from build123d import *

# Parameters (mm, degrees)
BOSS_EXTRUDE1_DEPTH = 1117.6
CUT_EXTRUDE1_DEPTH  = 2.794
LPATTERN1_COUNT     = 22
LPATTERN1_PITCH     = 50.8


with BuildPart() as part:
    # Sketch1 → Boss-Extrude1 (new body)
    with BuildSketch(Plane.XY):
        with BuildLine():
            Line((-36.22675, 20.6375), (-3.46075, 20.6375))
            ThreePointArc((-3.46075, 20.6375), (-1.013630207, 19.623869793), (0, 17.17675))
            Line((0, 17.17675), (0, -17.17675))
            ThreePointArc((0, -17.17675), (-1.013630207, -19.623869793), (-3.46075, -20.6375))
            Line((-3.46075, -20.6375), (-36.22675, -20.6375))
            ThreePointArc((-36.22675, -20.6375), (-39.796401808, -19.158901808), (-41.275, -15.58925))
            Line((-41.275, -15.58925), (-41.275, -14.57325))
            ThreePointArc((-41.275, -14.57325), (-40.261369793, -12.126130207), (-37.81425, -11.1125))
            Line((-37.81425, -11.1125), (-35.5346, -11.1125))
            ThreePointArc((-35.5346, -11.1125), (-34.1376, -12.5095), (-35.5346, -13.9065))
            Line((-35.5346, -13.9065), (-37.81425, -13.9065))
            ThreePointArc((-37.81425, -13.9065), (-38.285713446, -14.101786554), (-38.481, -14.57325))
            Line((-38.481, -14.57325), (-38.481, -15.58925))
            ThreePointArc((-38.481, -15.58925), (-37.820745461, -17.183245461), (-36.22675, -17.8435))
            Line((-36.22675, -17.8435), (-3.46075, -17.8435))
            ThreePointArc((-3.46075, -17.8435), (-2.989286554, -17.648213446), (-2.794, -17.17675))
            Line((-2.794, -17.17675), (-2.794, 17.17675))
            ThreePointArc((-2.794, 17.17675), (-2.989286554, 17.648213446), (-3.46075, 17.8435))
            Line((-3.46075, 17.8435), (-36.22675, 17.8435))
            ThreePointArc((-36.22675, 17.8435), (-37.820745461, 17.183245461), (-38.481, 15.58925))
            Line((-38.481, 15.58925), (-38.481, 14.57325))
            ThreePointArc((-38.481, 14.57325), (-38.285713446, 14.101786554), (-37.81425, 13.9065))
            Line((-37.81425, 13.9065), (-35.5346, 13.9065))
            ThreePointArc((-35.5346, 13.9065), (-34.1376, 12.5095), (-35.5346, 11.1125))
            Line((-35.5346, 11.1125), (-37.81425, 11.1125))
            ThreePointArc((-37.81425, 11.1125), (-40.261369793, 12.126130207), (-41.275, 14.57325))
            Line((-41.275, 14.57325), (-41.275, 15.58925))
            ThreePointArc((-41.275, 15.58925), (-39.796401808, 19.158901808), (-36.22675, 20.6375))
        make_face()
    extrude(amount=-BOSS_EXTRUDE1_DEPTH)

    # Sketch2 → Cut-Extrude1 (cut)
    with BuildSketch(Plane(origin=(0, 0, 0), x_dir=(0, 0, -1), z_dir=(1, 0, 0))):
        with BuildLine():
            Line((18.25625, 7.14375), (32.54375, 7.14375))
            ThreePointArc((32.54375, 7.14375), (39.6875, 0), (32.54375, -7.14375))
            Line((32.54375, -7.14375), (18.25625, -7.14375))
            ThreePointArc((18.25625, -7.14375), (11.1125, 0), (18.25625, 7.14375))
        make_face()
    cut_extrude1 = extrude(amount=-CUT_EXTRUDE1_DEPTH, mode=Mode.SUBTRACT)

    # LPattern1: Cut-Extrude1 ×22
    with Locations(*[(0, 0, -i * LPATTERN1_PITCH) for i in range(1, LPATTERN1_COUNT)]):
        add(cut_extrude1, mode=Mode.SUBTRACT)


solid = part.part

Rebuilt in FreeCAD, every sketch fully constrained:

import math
import FreeCAD as App
import Part
import Sketcher
from FreeCAD import Vector
Q = App.Units.Quantity

doc = App.newDocument("Part")
body = doc.addObject("PartDesign::Body", "Body")

sketch1 = body.newObject("Sketcher::SketchObject", "Sketch")
sketch1.AttachmentSupport = (doc.getObject("XY_Plane"), [""])
sketch1.MapMode = "FlatFace"
sketch1.addGeometry(Part.LineSegment(Vector(-3.46075, 20.6375, 0), Vector(-36.22675, 20.6375, 0)), False)
sketch1.addGeometry(Part.ArcOfCircle(Part.Circle(Vector(-36.22675, 15.58925, 0), Vector(0, 0, 1), 5.04825), math.radians(90), math.radians(180)), False)
sketch1.addGeometry(Part.LineSegment(Vector(-41.275, 15.58925, 0), Vector(-41.275, 14.57325, 0)), False)
sketch1.addGeometry(Part.ArcOfCircle(Part.Circle(Vector(-37.81425, 14.57325, 0), Vector(0, 0, 1), 3.46075), math.radians(180), math.radians(270)), False)
sketch1.addGeometry(Part.LineSegment(Vector(-37.81425, 11.1125, 0), Vector(-35.5346, 11.1125, 0)), False)
sketch1.addGeometry(Part.ArcOfCircle(Part.Circle(Vector(-35.5346, 12.5095, 0), Vector(0, 0, 1), 1.397), math.radians(-90), math.radians(90)), False)
sketch1.addGeometry(Part.LineSegment(Vector(-35.5346, 13.9065, 0), Vector(-37.81425, 13.9065, 0)), False)
sketch1.addGeometry(Part.ArcOfCircle(Part.Circle(Vector(-37.81425, 14.57325, 0), Vector(0, 0, 1), 0.66675), math.radians(-180), math.radians(-90)), False)
sketch1.addGeometry(Part.LineSegment(Vector(-38.481, 14.57325, 0), Vector(-38.481, 15.58925, 0)), False)
sketch1.addGeometry(Part.ArcOfCircle(Part.Circle(Vector(-36.22675, 15.58925, 0), Vector(0, 0, 1), 2.25425), math.radians(90), math.radians(180)), False)
sketch1.addGeometry(Part.LineSegment(Vector(-36.22675, 17.8435, 0), Vector(-3.46075, 17.8435, 0)), False)
sketch1.addGeometry(Part.ArcOfCircle(Part.Circle(Vector(-3.46075, 17.17675, 0), Vector(0, 0, 1), 0.66675), math.radians(0), math.radians(90)), False)
sketch1.addGeometry(Part.LineSegment(Vector(-2.794, 17.17675, 0), Vector(-2.794, -17.17675, 0)), False)
sketch1.addGeometry(Part.ArcOfCircle(Part.Circle(Vector(-3.46075, -17.17675, 0), Vector(0, 0, 1), 0.66675), math.radians(-90), math.radians(0)), False)
sketch1.addGeometry(Part.LineSegment(Vector(-3.46075, -17.8435, 0), Vector(-36.22675, -17.8435, 0)), False)
sketch1.addGeometry(Part.ArcOfCircle(Part.Circle(Vector(-36.22675, -15.58925, 0), Vector(0, 0, 1), 2.25425), math.radians(-180), math.radians(-90)), False)
sketch1.addGeometry(Part.LineSegment(Vector(-38.481, -15.58925, 0), Vector(-38.481, -14.57325, 0)), False)
sketch1.addGeometry(Part.ArcOfCircle(Part.Circle(Vector(-37.81425, -14.57325, 0), Vector(0, 0, 1), 0.66675), math.radians(90), math.radians(180)), False)
sketch1.addGeometry(Part.LineSegment(Vector(-37.81425, -13.9065, 0), Vector(-35.5346, -13.9065, 0)), False)
sketch1.addGeometry(Part.ArcOfCircle(Part.Circle(Vector(-35.5346, -12.5095, 0), Vector(0, 0, 1), 1.397), math.radians(-90), math.radians(90)), False)
sketch1.addGeometry(Part.LineSegment(Vector(-35.5346, -11.1125, 0), Vector(-37.81425, -11.1125, 0)), False)
sketch1.addGeometry(Part.ArcOfCircle(Part.Circle(Vector(-37.81425, -14.57325, 0), Vector(0, 0, 1), 3.46075), math.radians(90), math.radians(180)), False)
sketch1.addGeometry(Part.LineSegment(Vector(-41.275, -14.57325, 0), Vector(-41.275, -15.58925, 0)), False)
sketch1.addGeometry(Part.ArcOfCircle(Part.Circle(Vector(-36.22675, -15.58925, 0), Vector(0, 0, 1), 5.04825), math.radians(180), math.radians(270)), False)
sketch1.addGeometry(Part.LineSegment(Vector(-36.22675, -20.6375, 0), Vector(-3.46075, -20.6375, 0)), False)
sketch1.addGeometry(Part.ArcOfCircle(Part.Circle(Vector(-3.46075, -17.17675, 0), Vector(0, 0, 1), 3.46075), math.radians(-90), math.radians(0)), False)
sketch1.addGeometry(Part.LineSegment(Vector(0, -17.17675, 0), Vector(0, 17.17675, 0)), False)
sketch1.addGeometry(Part.ArcOfCircle(Part.Circle(Vector(-3.46075, 17.17675, 0), Vector(0, 0, 1), 3.46075), math.radians(0), math.radians(90)), False)
sketch1.addConstraint(Sketcher.Constraint("Tangent", 0, 2, 1, 1))
sketch1.addConstraint(Sketcher.Constraint("Tangent", 1, 2, 2, 1))
sketch1.addConstraint(Sketcher.Constraint("Tangent", 2, 2, 3, 1))
sketch1.addConstraint(Sketcher.Constraint("Tangent", 3, 2, 4, 1))
sketch1.addConstraint(Sketcher.Constraint("Tangent", 4, 2, 5, 1))
sketch1.addConstraint(Sketcher.Constraint("Tangent", 5, 2, 6, 1))
sketch1.addConstraint(Sketcher.Constraint("Tangent", 6, 2, 7, 2))
sketch1.addConstraint(Sketcher.Constraint("Tangent", 7, 1, 8, 1))
sketch1.addConstraint(Sketcher.Constraint("Tangent", 8, 2, 9, 2))
sketch1.addConstraint(Sketcher.Constraint("Tangent", 9, 1, 10, 1))
sketch1.addConstraint(Sketcher.Constraint("Tangent", 10, 2, 11, 2))
sketch1.addConstraint(Sketcher.Constraint("Tangent", 11, 1, 12, 1))
sketch1.addConstraint(Sketcher.Constraint("Tangent", 12, 2, 13, 2))
sketch1.addConstraint(Sketcher.Constraint("Tangent", 13, 1, 14, 1))
sketch1.addConstraint(Sketcher.Constraint("Tangent", 14, 2, 15, 2))
sketch1.addConstraint(Sketcher.Constraint("Tangent", 15, 1, 16, 1))
sketch1.addConstraint(Sketcher.Constraint("Tangent", 16, 2, 17, 2))
sketch1.addConstraint(Sketcher.Constraint("Tangent", 17, 1, 18, 1))
sketch1.addConstraint(Sketcher.Constraint("Tangent", 18, 2, 19, 1))
sketch1.addConstraint(Sketcher.Constraint("Tangent", 19, 2, 20, 1))
sketch1.addConstraint(Sketcher.Constraint("Tangent", 20, 2, 21, 1))
sketch1.addConstraint(Sketcher.Constraint("Tangent", 21, 2, 22, 1))
sketch1.addConstraint(Sketcher.Constraint("Tangent", 22, 2, 23, 1))
sketch1.addConstraint(Sketcher.Constraint("Tangent", 23, 2, 24, 1))
sketch1.addConstraint(Sketcher.Constraint("Tangent", 24, 2, 25, 1))
sketch1.addConstraint(Sketcher.Constraint("Tangent", 25, 2, 26, 1))
sketch1.addConstraint(Sketcher.Constraint("Tangent", 26, 2, 27, 1))
sketch1.addConstraint(Sketcher.Constraint("Tangent", 27, 2, 0, 1))
sketch1.addConstraint(Sketcher.Constraint("Horizontal", 0))
sketch1.addConstraint(Sketcher.Constraint("Vertical", 2))
sketch1.addConstraint(Sketcher.Constraint("Horizontal", 4))
sketch1.addConstraint(Sketcher.Constraint("Horizontal", 6))
sketch1.addConstraint(Sketcher.Constraint("Vertical", 8))
sketch1.addConstraint(Sketcher.Constraint("Horizontal", 10))
sketch1.addConstraint(Sketcher.Constraint("Vertical", 12))
sketch1.addConstraint(Sketcher.Constraint("Horizontal", 14))
sketch1.addConstraint(Sketcher.Constraint("Vertical", 16))
sketch1.addConstraint(Sketcher.Constraint("Horizontal", 18))
sketch1.addConstraint(Sketcher.Constraint("Horizontal", 20))
sketch1.addConstraint(Sketcher.Constraint("Vertical", 22))
sketch1.addConstraint(Sketcher.Constraint("Horizontal", 24))
sketch1.addConstraint(Sketcher.Constraint("Vertical", 26))
sketch1.addConstraint(Sketcher.Constraint("Coincident", 7, 3, 3, 3))
sketch1.addConstraint(Sketcher.Constraint("Coincident", 9, 3, 1, 3))
sketch1.addConstraint(Sketcher.Constraint("Coincident", 21, 3, 17, 3))
sketch1.addConstraint(Sketcher.Constraint("Coincident", 23, 3, 15, 3))
sketch1.addConstraint(Sketcher.Constraint("Coincident", 25, 3, 13, 3))
sketch1.addConstraint(Sketcher.Constraint("Coincident", 27, 3, 11, 3))
sketch1.addConstraint(Sketcher.Constraint("Equal", 7, 11))
sketch1.addConstraint(Sketcher.Constraint("Equal", 11, 13))
sketch1.addConstraint(Sketcher.Constraint("Equal", 9, 15))
sketch1.addConstraint(Sketcher.Constraint("Equal", 13, 17))
sketch1.addConstraint(Sketcher.Constraint("Symmetric", 25, 2, 26, 2, -1, 1))
sketch1.addConstraint(Sketcher.Constraint("Symmetric", 3, 3, 17, 3, -1))
sketch1.addConstraint(Sketcher.Constraint("Vertical", 5, 3, 19, 3))
sketch1.addConstraint(Sketcher.Constraint("Radius", 5, Q("0.055 in")))
sketch1.addConstraint(Sketcher.Constraint("DistanceX", 0, 2, 0, 1, Q("1.29 in")))
sketch1.addConstraint(Sketcher.Constraint("DistanceY", 2, 2, 2, 1, Q("0.04 in")))
sketch1.addConstraint(Sketcher.Constraint("DistanceY", 13, 3, 9, 3, Q("1.29 in")))
sketch1.addConstraint(Sketcher.Constraint("DistanceY", 5, 3, 0, 2, Q("0.32 in")))
sketch1.addConstraint(Sketcher.Constraint("DistanceY", 12, 2, 12, 1, Q("1.3525 in")))
sketch1.addConstraint(Sketcher.Constraint("DistanceX", 5, 3, -1, 1, Q("1.399 in")))
pad1 = body.newObject("PartDesign::Pad", "Pad")
pad1.Profile = sketch1
pad1.Length = Q("44 in")
pad1.Reversed = True

sketch2 = body.newObject("Sketcher::SketchObject", "Sketch001")
sketch2.AttachmentSupport = (doc.getObject("YZ_Plane"), [""])
sketch2.MapMode = "FlatFace"
sketch2.addGeometry(Part.LineSegment(Vector(7.14375, -32.54375, 0), Vector(7.14375, -18.25625, 0)), False)
sketch2.addGeometry(Part.ArcOfCircle(Part.Circle(Vector(0, -18.25625, 0), Vector(0, 0, 1), 7.14375), math.radians(0), math.radians(180)), False)
sketch2.addGeometry(Part.LineSegment(Vector(-7.14375, -18.25625, 0), Vector(-7.14375, -32.54375, 0)), False)
sketch2.addGeometry(Part.ArcOfCircle(Part.Circle(Vector(0, -32.54375, 0), Vector(0, 0, 1), 7.14375), math.radians(180), math.radians(360)), False)
sketch2.addConstraint(Sketcher.Constraint("Tangent", 0, 2, 1, 1))
sketch2.addConstraint(Sketcher.Constraint("Tangent", 1, 2, 2, 1))
sketch2.addConstraint(Sketcher.Constraint("Tangent", 2, 2, 3, 1))
sketch2.addConstraint(Sketcher.Constraint("Tangent", 3, 2, 0, 1))
sketch2.addConstraint(Sketcher.Constraint("Vertical", 0))
sketch2.addConstraint(Sketcher.Constraint("Vertical", 2))
sketch2.addConstraint(Sketcher.Constraint("PointOnObject", 1, 3, -2))
sketch2.addConstraint(Sketcher.Constraint("Radius", 1, Q("0.28125 in")))
sketch2.addConstraint(Sketcher.Constraint("DistanceY", 0, 1, 0, 2, Q("0.5625 in")))
sketch2.addConstraint(Sketcher.Constraint("DistanceY", 1, 3, -1, 1, Q("0.71875 in")))
pocket1 = body.newObject("PartDesign::Pocket", "Pocket")
pocket1.Profile = sketch2
pocket1.Length = Q("0.11 in")
doc.recompute()

linearpattern = body.newObject("PartDesign::LinearPattern", "LinearPattern")
linearpattern.Originals = [pocket1]
linearpattern.Direction = (doc.getObject("Z_Axis"), [""])
linearpattern.Mode = "offset"
linearpattern.Offset = Q("2 in")
linearpattern.Occurrences = 22
linearpattern.Reversed = True
body.Tip = linearpattern

doc.recompute()
